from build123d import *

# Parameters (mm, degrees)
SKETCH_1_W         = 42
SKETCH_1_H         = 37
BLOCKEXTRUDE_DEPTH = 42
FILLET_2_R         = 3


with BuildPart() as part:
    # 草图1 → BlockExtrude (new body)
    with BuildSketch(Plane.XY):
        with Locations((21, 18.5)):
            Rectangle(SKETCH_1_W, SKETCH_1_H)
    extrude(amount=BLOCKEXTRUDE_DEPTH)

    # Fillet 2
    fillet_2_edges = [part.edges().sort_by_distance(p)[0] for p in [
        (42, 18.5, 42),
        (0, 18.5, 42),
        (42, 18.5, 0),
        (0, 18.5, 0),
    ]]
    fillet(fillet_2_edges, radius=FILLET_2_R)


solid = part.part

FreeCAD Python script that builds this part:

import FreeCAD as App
import Part
import Sketcher

V = App.Vector
Q = App.Units.Quantity


def edges_at(feature, points):
    """Names of the edges that pass closest to the given points."""
    edges = feature.Shape.Edges
    near = lambda p: min(range(len(edges)), key=lambda i: edges[i].distToShape(Part.Vertex(*p))[0])
    return sorted({f"Edge{near(p) + 1}" for p in points})

doc = App.newDocument("Part")
body = doc.addObject("PartDesign::Body", "Body")

sketch1 = body.newObject("Sketcher::SketchObject", "Sketch")
sketch1.AttachmentSupport = (doc.getObject("XY_Plane"), [""])
sketch1.MapMode = "FlatFace"
sketch1.addGeometry([
    Part.LineSegment(V(0, 37, 0), V(0, 0, 0)),
    Part.LineSegment(V(0, 0, 0), V(42, 0, 0)),
    Part.LineSegment(V(42, 0, 0), V(42, 37, 0)),
    Part.LineSegment(V(42, 37, 0), V(0, 37, 0)),
], False)
sketch1.addConstraint([
    Sketcher.Constraint("Coincident", 0, 2, 1, 1),
    Sketcher.Constraint("Coincident", 1, 2, 2, 1),
    Sketcher.Constraint("Coincident", 2, 2, 3, 1),
    Sketcher.Constraint("Coincident", 3, 2, 0, 1),
    Sketcher.Constraint("Vertical", 0),
    Sketcher.Constraint("Horizontal", 1),
    Sketcher.Constraint("Vertical", 2),
    Sketcher.Constraint("Horizontal", 3),
    Sketcher.Constraint("Coincident", 0, 2, -1, 1),
    Sketcher.Constraint("DistanceX", 1, 1, 1, 2, Q("42 mm")),
    Sketcher.Constraint("DistanceY", 0, 2, 0, 1, Q("37 mm")),
])
pad1 = body.newObject("PartDesign::Pad", "Pad")
pad1.Profile = sketch1
pad1.Length = 42
doc.recompute()

fillet = body.newObject("PartDesign::Fillet", "Fillet")
fillet.Base = (pad1, edges_at(pad1, [
    (42, 18.5, 42),
    (0, 18.5, 42),
    (42, 18.5, 0),
    (0, 18.5, 0),
]))
fillet.Radius = 3

doc.recompute()
